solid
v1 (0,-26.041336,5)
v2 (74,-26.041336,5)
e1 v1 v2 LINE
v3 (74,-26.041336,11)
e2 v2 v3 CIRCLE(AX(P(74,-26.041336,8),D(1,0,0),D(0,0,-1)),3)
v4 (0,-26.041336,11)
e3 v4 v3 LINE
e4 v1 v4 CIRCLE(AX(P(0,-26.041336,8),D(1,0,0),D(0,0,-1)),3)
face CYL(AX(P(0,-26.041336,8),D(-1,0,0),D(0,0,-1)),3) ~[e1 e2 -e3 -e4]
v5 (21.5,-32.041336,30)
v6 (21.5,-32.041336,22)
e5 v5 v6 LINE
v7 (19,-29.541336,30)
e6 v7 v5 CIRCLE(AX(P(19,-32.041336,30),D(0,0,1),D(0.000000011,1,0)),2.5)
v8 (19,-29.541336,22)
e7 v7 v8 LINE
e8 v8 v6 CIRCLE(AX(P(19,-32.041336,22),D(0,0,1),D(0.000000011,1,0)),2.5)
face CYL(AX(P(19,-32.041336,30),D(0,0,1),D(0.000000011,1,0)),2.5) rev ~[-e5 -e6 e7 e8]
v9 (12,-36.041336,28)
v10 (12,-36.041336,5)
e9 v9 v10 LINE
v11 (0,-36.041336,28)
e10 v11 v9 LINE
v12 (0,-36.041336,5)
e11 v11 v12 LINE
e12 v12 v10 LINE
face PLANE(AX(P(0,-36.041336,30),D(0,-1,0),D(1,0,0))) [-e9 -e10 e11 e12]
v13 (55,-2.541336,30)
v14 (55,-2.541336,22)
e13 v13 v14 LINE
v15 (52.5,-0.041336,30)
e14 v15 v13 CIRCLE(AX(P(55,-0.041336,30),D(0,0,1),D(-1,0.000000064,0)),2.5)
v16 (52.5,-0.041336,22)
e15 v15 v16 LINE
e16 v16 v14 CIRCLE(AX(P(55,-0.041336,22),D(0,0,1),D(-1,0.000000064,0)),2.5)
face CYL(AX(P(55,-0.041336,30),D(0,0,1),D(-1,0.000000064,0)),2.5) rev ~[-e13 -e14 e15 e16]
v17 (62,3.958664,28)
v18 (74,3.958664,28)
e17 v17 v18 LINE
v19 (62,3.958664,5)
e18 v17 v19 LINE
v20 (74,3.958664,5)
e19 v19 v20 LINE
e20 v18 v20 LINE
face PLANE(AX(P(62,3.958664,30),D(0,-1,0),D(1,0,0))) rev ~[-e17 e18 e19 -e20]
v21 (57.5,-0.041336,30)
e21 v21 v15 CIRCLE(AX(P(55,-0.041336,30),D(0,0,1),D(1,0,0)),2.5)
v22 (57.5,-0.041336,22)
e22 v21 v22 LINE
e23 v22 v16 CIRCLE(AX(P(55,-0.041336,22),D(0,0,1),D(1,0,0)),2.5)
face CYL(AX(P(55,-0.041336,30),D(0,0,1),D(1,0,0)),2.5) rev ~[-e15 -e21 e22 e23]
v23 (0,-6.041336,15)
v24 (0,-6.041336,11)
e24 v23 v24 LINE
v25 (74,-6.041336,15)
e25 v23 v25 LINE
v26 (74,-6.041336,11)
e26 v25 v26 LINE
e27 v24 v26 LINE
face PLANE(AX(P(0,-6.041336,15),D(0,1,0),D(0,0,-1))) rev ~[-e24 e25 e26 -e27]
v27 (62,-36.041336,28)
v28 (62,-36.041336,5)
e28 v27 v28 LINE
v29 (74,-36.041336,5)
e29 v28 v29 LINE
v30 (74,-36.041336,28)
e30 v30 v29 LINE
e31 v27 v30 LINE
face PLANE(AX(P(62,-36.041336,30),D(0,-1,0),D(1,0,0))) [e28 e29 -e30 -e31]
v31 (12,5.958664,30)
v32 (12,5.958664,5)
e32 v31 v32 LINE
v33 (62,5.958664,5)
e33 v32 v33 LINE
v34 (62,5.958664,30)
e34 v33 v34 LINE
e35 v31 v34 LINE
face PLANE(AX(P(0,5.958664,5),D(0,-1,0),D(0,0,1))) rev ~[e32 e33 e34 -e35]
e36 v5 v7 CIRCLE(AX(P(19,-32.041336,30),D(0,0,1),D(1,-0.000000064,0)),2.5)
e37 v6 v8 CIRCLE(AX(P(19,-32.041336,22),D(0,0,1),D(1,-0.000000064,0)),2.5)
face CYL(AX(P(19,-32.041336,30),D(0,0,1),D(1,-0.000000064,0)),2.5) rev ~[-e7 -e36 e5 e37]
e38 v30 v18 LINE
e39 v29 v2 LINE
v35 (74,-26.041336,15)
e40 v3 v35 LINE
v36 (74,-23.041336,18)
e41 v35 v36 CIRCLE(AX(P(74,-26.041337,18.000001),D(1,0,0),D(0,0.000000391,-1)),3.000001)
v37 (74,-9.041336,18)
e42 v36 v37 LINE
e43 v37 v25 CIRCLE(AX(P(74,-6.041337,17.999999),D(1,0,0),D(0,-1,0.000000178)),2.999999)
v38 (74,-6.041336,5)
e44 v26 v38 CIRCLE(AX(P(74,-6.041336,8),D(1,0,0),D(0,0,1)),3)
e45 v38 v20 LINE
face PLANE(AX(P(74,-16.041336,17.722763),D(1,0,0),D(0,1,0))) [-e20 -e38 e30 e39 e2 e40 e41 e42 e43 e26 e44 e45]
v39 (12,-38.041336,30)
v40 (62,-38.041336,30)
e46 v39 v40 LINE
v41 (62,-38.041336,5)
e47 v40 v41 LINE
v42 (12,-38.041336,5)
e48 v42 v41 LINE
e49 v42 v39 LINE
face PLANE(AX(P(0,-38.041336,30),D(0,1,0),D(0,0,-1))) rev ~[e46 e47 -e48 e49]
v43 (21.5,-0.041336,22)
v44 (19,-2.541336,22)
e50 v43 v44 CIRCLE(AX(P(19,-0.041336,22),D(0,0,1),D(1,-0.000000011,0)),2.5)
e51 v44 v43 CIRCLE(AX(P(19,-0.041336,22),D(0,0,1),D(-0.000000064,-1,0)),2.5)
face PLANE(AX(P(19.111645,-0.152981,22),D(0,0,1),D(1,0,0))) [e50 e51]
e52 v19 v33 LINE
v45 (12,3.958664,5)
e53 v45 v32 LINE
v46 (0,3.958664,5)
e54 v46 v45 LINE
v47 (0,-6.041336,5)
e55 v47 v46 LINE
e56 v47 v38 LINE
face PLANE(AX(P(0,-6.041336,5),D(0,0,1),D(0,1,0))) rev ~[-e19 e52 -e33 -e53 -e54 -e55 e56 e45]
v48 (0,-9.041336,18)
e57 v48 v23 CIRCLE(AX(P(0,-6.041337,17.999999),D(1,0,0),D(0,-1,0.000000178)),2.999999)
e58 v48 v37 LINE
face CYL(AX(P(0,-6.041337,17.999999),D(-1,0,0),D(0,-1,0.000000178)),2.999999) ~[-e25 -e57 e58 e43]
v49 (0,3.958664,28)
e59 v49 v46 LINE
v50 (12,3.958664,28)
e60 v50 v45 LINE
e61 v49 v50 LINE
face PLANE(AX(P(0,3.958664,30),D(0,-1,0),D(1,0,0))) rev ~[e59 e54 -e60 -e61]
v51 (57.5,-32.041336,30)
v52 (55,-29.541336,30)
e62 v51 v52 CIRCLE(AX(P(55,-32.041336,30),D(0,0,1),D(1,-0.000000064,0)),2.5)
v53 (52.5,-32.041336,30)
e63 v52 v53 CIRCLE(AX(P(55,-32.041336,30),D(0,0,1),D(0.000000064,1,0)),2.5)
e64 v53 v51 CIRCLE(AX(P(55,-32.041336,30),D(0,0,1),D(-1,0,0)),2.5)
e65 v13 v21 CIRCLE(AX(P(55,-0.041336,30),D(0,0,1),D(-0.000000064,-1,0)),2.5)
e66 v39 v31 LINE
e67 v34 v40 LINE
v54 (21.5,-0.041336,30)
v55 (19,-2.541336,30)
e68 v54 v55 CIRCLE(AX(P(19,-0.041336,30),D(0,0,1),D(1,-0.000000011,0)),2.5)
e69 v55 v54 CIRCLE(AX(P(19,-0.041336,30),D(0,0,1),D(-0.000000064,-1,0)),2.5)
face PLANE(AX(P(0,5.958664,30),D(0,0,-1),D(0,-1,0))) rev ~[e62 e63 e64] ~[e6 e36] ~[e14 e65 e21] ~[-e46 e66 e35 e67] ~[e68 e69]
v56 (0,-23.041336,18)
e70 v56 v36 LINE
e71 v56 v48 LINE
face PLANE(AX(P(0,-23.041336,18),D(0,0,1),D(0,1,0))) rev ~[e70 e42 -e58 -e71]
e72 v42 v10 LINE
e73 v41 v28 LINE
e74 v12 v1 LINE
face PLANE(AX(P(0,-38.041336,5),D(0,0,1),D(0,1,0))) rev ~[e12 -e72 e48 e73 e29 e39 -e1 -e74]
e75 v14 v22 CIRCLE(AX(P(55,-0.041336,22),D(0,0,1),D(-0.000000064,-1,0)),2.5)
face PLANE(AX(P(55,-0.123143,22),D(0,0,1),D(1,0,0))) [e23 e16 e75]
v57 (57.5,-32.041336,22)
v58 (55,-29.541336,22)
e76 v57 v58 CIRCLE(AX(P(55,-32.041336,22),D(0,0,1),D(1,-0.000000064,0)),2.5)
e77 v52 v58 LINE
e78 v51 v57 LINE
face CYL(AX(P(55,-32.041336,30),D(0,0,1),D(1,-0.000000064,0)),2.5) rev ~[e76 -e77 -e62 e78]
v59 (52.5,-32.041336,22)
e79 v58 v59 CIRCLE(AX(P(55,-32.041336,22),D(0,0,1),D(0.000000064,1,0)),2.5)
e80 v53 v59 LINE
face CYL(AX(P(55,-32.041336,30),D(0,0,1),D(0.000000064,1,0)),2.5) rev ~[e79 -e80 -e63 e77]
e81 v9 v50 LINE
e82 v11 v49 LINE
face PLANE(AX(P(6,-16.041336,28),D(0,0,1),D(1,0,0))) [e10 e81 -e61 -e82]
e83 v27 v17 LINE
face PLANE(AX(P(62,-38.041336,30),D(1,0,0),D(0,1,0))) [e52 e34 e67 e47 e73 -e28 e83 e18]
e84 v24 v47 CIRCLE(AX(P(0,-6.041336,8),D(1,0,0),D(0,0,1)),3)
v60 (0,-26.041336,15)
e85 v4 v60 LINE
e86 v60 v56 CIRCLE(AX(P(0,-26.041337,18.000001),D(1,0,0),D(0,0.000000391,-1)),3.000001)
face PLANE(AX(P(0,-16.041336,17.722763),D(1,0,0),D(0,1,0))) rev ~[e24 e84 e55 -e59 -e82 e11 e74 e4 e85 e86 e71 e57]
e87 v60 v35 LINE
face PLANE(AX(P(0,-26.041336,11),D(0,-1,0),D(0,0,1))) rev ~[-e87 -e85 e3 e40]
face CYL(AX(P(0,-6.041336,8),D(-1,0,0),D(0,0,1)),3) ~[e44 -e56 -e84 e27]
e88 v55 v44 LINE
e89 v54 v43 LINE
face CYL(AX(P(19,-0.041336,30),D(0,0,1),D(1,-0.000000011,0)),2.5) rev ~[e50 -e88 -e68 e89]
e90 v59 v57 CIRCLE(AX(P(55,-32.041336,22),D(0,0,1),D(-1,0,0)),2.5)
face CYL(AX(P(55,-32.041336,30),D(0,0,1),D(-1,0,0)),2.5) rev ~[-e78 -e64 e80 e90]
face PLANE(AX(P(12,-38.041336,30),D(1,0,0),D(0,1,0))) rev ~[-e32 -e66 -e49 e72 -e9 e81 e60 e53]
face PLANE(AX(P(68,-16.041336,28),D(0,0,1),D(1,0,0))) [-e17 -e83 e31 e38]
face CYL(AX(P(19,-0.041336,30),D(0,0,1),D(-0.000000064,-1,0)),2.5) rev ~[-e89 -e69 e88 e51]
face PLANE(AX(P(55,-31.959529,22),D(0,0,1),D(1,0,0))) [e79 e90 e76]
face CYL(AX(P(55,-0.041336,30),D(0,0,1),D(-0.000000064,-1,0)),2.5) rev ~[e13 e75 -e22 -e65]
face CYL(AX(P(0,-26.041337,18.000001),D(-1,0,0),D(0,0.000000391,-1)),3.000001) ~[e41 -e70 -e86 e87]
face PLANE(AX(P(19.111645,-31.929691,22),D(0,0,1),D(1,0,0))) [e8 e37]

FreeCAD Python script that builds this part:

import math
import FreeCAD as App
import Part
import Sketcher

doc = App.newDocument("Part")
body = doc.addObject("PartDesign::Body", "Body")

# Sketch on YZ plane
sketch1 = doc.addObject("Sketcher::SketchObject", "Sketch")
body.addObject(sketch1)
sketch1.AttachmentSupport = (doc.YZ_Plane, [""])
sketch1.MapMode = "FlatFace"
sketch1.addGeometry(Part.ArcOfCircle(Part.Circle(App.Vector(-26, 8, 0), App.Vector(0, 0, 1), 3), math.radians(-90), math.radians(90)), False)
sketch1.addGeometry(Part.LineSegment(App.Vector(-26, 11, 0), App.Vector(-26, 15, 0)), False)
sketch1.addGeometry(Part.ArcOfCircle(Part.Circle(App.Vector(-26, 18, 0), App.Vector(0, 0, 1), 3), math.radians(-90), math.radians(0)), False)
sketch1.addGeometry(Part.LineSegment(App.Vector(-23, 18, 0), App.Vector(-9, 18, 0)), False)
sketch1.addGeometry(Part.ArcOfCircle(Part.Circle(App.Vector(-6, 18, 0), App.Vector(0, 0, 1), 3), math.radians(180), math.radians(270)), False)
sketch1.addGeometry(Part.LineSegment(App.Vector(-6, 15, 0), App.Vector(-6, 11, 0)), False)
sketch1.addGeometry(Part.ArcOfCircle(Part.Circle(App.Vector(-6, 8, 0), App.Vector(0, 0, 1), 3), math.radians(90), math.radians(270)), False)
sketch1.addGeometry(Part.LineSegment(App.Vector(-6, 5, 0), App.Vector(6, 5, 0)), False)
sketch1.addGeometry(Part.LineSegment(App.Vector(6, 5, 0), App.Vector(6, 30, 0)), False)
sketch1.addGeometry(Part.LineSegment(App.Vector(6, 30, 0), App.Vector(-38, 30, 0)), False)
sketch1.addGeometry(Part.LineSegment(App.Vector(-38, 30, 0), App.Vector(-38, 5, 0)), False)
sketch1.addGeometry(Part.LineSegment(App.Vector(-38, 5, 0), App.Vector(-26, 5, 0)), False)
sketch1.addConstraint(Sketcher.Constraint("Coincident", 0, 2, 1, 1))
sketch1.addConstraint(Sketcher.Constraint("Coincident", 1, 2, 2, 1))
sketch1.addConstraint(Sketcher.Constraint("Coincident", 2, 2, 3, 1))
sketch1.addConstraint(Sketcher.Constraint("Coincident", 3, 2, 4, 1))
sketch1.addConstraint(Sketcher.Constraint("Coincident", 4, 2, 5, 1))
sketch1.addConstraint(Sketcher.Constraint("Coincident", 5, 2, 6, 1))
sketch1.addConstraint(Sketcher.Constraint("Tangent", 6, 2, 7, 1))
sketch1.addConstraint(Sketcher.Constraint("Coincident", 7, 2, 8, 1))
sketch1.addConstraint(Sketcher.Constraint("Coincident", 8, 2, 9, 1))
sketch1.addConstraint(Sketcher.Constraint("Coincident", 9, 2, 10, 1))
sketch1.addConstraint(Sketcher.Constraint("Coincident", 10, 2, 11, 1))
sketch1.addConstraint(Sketcher.Constraint("Tangent", 11, 2, 0, 1))
sketch1.addConstraint(Sketcher.Constraint("Vertical", 1))
sketch1.addConstraint(Sketcher.Constraint("Horizontal", 3))
sketch1.addConstraint(Sketcher.Constraint("Vertical", 5))
sketch1.addConstraint(Sketcher.Constraint("Horizontal", 7))
sketch1.addConstraint(Sketcher.Constraint("Vertical", 8))
sketch1.addConstraint(Sketcher.Constraint("Horizontal", 9))
sketch1.addConstraint(Sketcher.Constraint("Vertical", 10))
sketch1.addConstraint(Sketcher.Constraint("Horizontal", 11))
sketch1.addConstraint(Sketcher.Constraint("Equal", 0, 2))
sketch1.addConstraint(Sketcher.Constraint("Equal", 2, 4))
sketch1.addConstraint(Sketcher.Constraint("Equal", 4, 6))
sketch1.addConstraint(Sketcher.Constraint("Horizontal", 2, 3, 4, 3))
sketch1.addConstraint(Sketcher.Constraint("Horizontal", 0, 3, 6, 3))
sketch1.addConstraint(Sketcher.Constraint("Horizontal", 4, 3, 2, 2))
sketch1.addConstraint(Sketcher.Constraint("Vertical", 0, 3, 2, 3))
sketch1.addConstraint(Sketcher.Constraint("Vertical", 4, 3, 6, 3))
sketch1.addConstraint(Sketcher.Constraint("Vertical", 2, 3, 0, 2))
sketch1.addConstraint(Sketcher.Constraint("Vertical", 6, 3, 4, 2))
sketch1.addConstraint(Sketcher.Constraint("Equal", 7, 11))
sketch1.addConstraint(Sketcher.Constraint("Radius", 0, 3.0))
sketch1.addConstraint(Sketcher.Constraint("DistanceX", 3, 1, 3, 2, 14.0))
sketch1.addConstraint(Sketcher.Constraint("DistanceX", 7, 1, 7, 2, 12.0))
sketch1.addConstraint(Sketcher.Constraint("DistanceY", 1, 1, 1, 2, 4.0))
sketch1.addConstraint(Sketcher.Constraint("DistanceY", 8, 1, 8, 2, 25.0))
sketch1.addConstraint(Sketcher.Constraint("DistanceY", -1, 1, 0, 3, 8.0))
sketch1.addConstraint(Sketcher.Constraint("DistanceX", 0, 3, -1, 1, 26.041336))
pad1 = doc.addObject("PartDesign::Pad", "Pad")
body.addObject(pad1)
pad1.Profile = sketch1
pad1.Length = 74

# Sketch on XY plane
sketch2 = doc.addObject("Sketcher::SketchObject", "Sketch001")
body.addObject(sketch2)
sketch2.AttachmentSupport = (doc.XY_Plane, [""])
sketch2.MapMode = "FlatFace"
sketch2.AttachmentOffset = App.Placement(App.Vector(0, 0, 30), App.Rotation())
sketch2.addGeometry(Part.LineSegment(App.Vector(62, 6, 0), App.Vector(62, -38, 0)), False)
sketch2.addGeometry(Part.LineSegment(App.Vector(62, -38, 0), App.Vector(74, -38, 0)), False)
sketch2.addGeometry(Part.LineSegment(App.Vector(74, -38, 0), App.Vector(74, 6, 0)), False)
sketch2.addGeometry(Part.LineSegment(App.Vector(74, 6, 0), App.Vector(62, 6, 0)), False)
sketch2.addGeometry(Part.LineSegment(App.Vector(0, 6, 0), App.Vector(0, -38, 0)), False)
sketch2.addGeometry(Part.LineSegment(App.Vector(0, -38, 0), App.Vector(12, -38, 0)), False)
sketch2.addGeometry(Part.LineSegment(App.Vector(12, -38, 0), App.Vector(12, 6, 0)), False)
sketch2.addGeometry(Part.LineSegment(App.Vector(12, 6, 0), App.Vector(0, 6, 0)), False)
sketch2.addConstraint(Sketcher.Constraint("Coincident", 0, 2, 1, 1))
sketch2.addConstraint(Sketcher.Constraint("Coincident", 1, 2, 2, 1))
sketch2.addConstraint(Sketcher.Constraint("Coincident", 2, 2, 3, 1))
sketch2.addConstraint(Sketcher.Constraint("Coincident", 3, 2, 0, 1))
sketch2.addConstraint(Sketcher.Constraint("Coincident", 4, 2, 5, 1))
sketch2.addConstraint(Sketcher.Constraint("Coincident", 5, 2, 6, 1))
sketch2.addConstraint(Sketcher.Constraint("Coincident", 6, 2, 7, 1))
sketch2.addConstraint(Sketcher.Constraint("Coincident", 7, 2, 4, 1))
sketch2.addConstraint(Sketcher.Constraint("Vertical", 0))
sketch2.addConstraint(Sketcher.Constraint("Horizontal", 1))
sketch2.addConstraint(Sketcher.Constraint("Vertical", 2))
sketch2.addConstraint(Sketcher.Constraint("Horizontal", 3))
sketch2.addConstraint(Sketcher.Constraint("Vertical", 4))
sketch2.addConstraint(Sketcher.Constraint("Horizontal", 5))
sketch2.addConstraint(Sketcher.Constraint("Vertical", 6))
sketch2.addConstraint(Sketcher.Constraint("Horizontal", 7))
sketch2.addConstraint(Sketcher.Constraint("PointOnObject", 4, 2, -2))
sketch2.addConstraint(Sketcher.Constraint("Horizontal", 1, 2, 4, 2))
sketch2.addConstraint(Sketcher.Constraint("Horizontal", 3, 2, 6, 2))
sketch2.addConstraint(Sketcher.Constraint("Equal", 3, 5))
sketch2.addConstraint(Sketcher.Constraint("DistanceX", 1, 1, 1, 2, 12.0))
sketch2.addConstraint(Sketcher.Constraint("DistanceY", 0, 2, 0, 1, 44.0))
sketch2.addConstraint(Sketcher.Constraint("DistanceX", -1, 1, 0, 2, 62.0))
sketch2.addConstraint(Sketcher.Constraint("DistanceY", 0, 2, -1, 1, 38.041336))
pocket1 = doc.addObject("PartDesign::Pocket", "Pocket")
body.addObject(pocket1)
pocket1.Profile = sketch2
pocket1.Length = 2

# Sketch on XY plane
sketch3 = doc.addObject("Sketcher::SketchObject", "Sketch002")
body.addObject(sketch3)
sketch3.AttachmentSupport = (doc.XY_Plane, [""])
sketch3.MapMode = "FlatFace"
sketch3.AttachmentOffset = App.Placement(App.Vector(0, 0, 30), App.Rotation())
sketch3.addGeometry(Part.LineSegment(App.Vector(0, 6, 0), App.Vector(0, 4, 0)), False)
sketch3.addGeometry(Part.LineSegment(App.Vector(0, 4, 0), App.Vector(12, 4, 0)), False)
sketch3.addGeometry(Part.LineSegment(App.Vector(12, 4, 0), App.Vector(12, 6, 0)), False)
sketch3.addGeometry(Part.LineSegment(App.Vector(12, 6, 0), App.Vector(0, 6, 0)), False)
sketch3.addGeometry(Part.LineSegment(App.Vector(0, -36, 0), App.Vector(0, -38, 0)), False)
sketch3.addGeometry(Part.LineSegment(App.Vector(0, -38, 0), App.Vector(12, -38, 0)), False)
sketch3.addGeometry(Part.LineSegment(App.Vector(12, -38, 0), App.Vector(12, -36, 0)), False)
sketch3.addGeometry(Part.LineSegment(App.Vector(12, -36, 0), App.Vector(0, -36, 0)), False)
sketch3.addGeometry(Part.LineSegment(App.Vector(62, -36, 0), App.Vector(62, -38, 0)), False)
sketch3.addGeometry(Part.LineSegment(App.Vector(62, -38, 0), App.Vector(74, -38, 0)), False)
sketch3.addGeometry(Part.LineSegment(App.Vector(74, -38, 0), App.Vector(74, -36, 0)), False)
sketch3.addGeometry(Part.LineSegment(App.Vector(74, -36, 0), App.Vector(62, -36, 0)), False)
sketch3.addGeometry(Part.LineSegment(App.Vector(62, 6, 0), App.Vector(62, 4, 0)), False)
sketch3.addGeometry(Part.LineSegment(App.Vector(62, 4, 0), App.Vector(74, 4, 0)), False)
sketch3.addGeometry(Part.LineSegment(App.Vector(74, 4, 0), App.Vector(74, 6, 0)), False)
sketch3.addGeometry(Part.LineSegment(App.Vector(74, 6, 0), App.Vector(62, 6, 0)), False)
sketch3.addConstraint(Sketcher.Constraint("Coincident", 0, 2, 1, 1))
sketch3.addConstraint(Sketcher.Constraint("Coincident", 1, 2, 2, 1))
sketch3.addConstraint(Sketcher.Constraint("Coincident", 2, 2, 3, 1))
sketch3.addConstraint(Sketcher.Constraint("Coincident", 3, 2, 0, 1))
sketch3.addConstraint(Sketcher.Constraint("Coincident", 4, 2, 5, 1))
sketch3.addConstraint(Sketcher.Constraint("Coincident", 5, 2, 6, 1))
sketch3.addConstraint(Sketcher.Constraint("Coincident", 6, 2, 7, 1))
sketch3.addConstraint(Sketcher.Constraint("Coincident", 7, 2, 4, 1))
sketch3.addConstraint(Sketcher.Constraint("Coincident", 8, 2, 9, 1))
sketch3.addConstraint(Sketcher.Constraint("Coincident", 9, 2, 10, 1))
sketch3.addConstraint(Sketcher.Constraint("Coincident", 10, 2, 11, 1))
sketch3.addConstraint(Sketcher.Constraint("Coincident", 11, 2, 8, 1))
sketch3.addConstraint(Sketcher.Constraint("Coincident", 12, 2, 13, 1))
sketch3.addConstraint(Sketcher.Constraint("Coincident", 13, 2, 14, 1))
sketch3.addConstraint(Sketcher.Constraint("Coincident", 14, 2, 15, 1))
sketch3.addConstraint(Sketcher.Constraint("Coincident", 15, 2, 12, 1))
sketch3.addConstraint(Sketcher.Constraint("Vertical", 0))
sketch3.addConstraint(Sketcher.Constraint("Horizontal", 1))
sketch3.addConstraint(Sketcher.Constraint("Vertical", 2))
sketch3.addConstraint(Sketcher.Constraint("Horizontal", 3))
sketch3.addConstraint(Sketcher.Constraint("Vertical", 4))
sketch3.addConstraint(Sketcher.Constraint("Horizontal", 5))
sketch3.addConstraint(Sketcher.Constraint("Vertical", 6))
sketch3.addConstraint(Sketcher.Constraint("Horizontal", 7))
sketch3.addConstraint(Sketcher.Constraint("Vertical", 8))
sketch3.addConstraint(Sketcher.Constraint("Horizontal", 9))
sketch3.addConstraint(Sketcher.Constraint("Vertical", 10))
sketch3.addConstraint(Sketcher.Constraint("Horizontal", 11))
sketch3.addConstraint(Sketcher.Constraint("Vertical", 12))
sketch3.addConstraint(Sketcher.Constraint("Horizontal", 13))
sketch3.addConstraint(Sketcher.Constraint("Vertical", 14))
sketch3.addConstraint(Sketcher.Constraint("Horizontal", 15))
sketch3.addConstraint(Sketcher.Constraint("PointOnObject", 0, 2, -2))
sketch3.addConstraint(Sketcher.Constraint("PointOnObject", 4, 2, -2))
sketch3.addConstraint(Sketcher.Constraint("Horizontal", 5, 2, 8, 2))
sketch3.addConstraint(Sketcher.Constraint("Horizontal", 7, 2, 10, 2))
sketch3.addConstraint(Sketcher.Constraint("Horizontal", 1, 2, 12, 2))
sketch3.addConstraint(Sketcher.Constraint("Horizontal", 3, 2, 14, 2))
sketch3.addConstraint(Sketcher.Constraint("Vertical", 2, 2, 5, 2))
sketch3.addConstraint(Sketcher.Constraint("Vertical", 11, 2, 12, 2))
sketch3.addConstraint(Sketcher.Constraint("Vertical", 10, 2, 13, 2))
sketch3.addConstraint(Sketcher.Constraint("Equal", 7, 9))
sketch3.addConstraint(Sketcher.Constraint("Equal", 2, 4))
sketch3.addConstraint(Sketcher.Constraint("DistanceX", 1, 1, 1, 2, 12.0))
sketch3.addConstraint(Sketcher.Constraint("DistanceY", 0, 2, 0, 1, 2.0))
sketch3.addConstraint(Sketcher.Constraint("DistanceX", -1, 1, 8, 2, 62.0))
sketch3.addConstraint(Sketcher.Constraint("DistanceY", 4, 2, 0, 2, 42.0))
sketch3.addConstraint(Sketcher.Constraint("DistanceY", -1, 1, 0, 2, 3.958664))
pocket2 = doc.addObject("PartDesign::Pocket", "Pocket001")
body.addObject(pocket2)
pocket2.Profile = sketch3
pocket2.Length = 25

# Sketch on XY plane
sketch4 = doc.addObject("Sketcher::SketchObject", "Sketch003")
body.addObject(sketch4)
sketch4.AttachmentSupport = (doc.XY_Plane, [""])
sketch4.MapMode = "FlatFace"
sketch4.AttachmentOffset = App.Placement(App.Vector(0, 0, 30), App.Rotation())
sketch4.addGeometry(Part.ArcOfCircle(Part.Circle(App.Vector(19, 0, 0), App.Vector(0, 0, 1), 2.5), math.radians(0), math.radians(270)), False)
sketch4.addGeometry(Part.ArcOfCircle(Part.Circle(App.Vector(19, 0, 0), App.Vector(0, 0, 1), 2.5), math.radians(-90), math.radians(0)), False)
sketch4.addGeometry(Part.ArcOfCircle(Part.Circle(App.Vector(55, 0, 0), App.Vector(0, 0, 1), 2.5), math.radians(180), math.radians(270)), False)
sketch4.addGeometry(Part.ArcOfCircle(Part.Circle(App.Vector(55, 0, 0), App.Vector(0, 0, 1), 2.5), math.radians(-90), math.radians(0)), False)
sketch4.addGeometry(Part.ArcOfCircle(Part.Circle(App.Vector(55, 0, 0), App.Vector(0, 0, 1), 2.5), math.radians(0), math.radians(180)), False)
sketch4.addGeometry(Part.ArcOfCircle(Part.Circle(App.Vector(55, -32, 0), App.Vector(0, 0, 1), 2.5), math.radians(90), math.radians(180)), False)
sketch4.addGeometry(Part.ArcOfCircle(Part.Circle(App.Vector(55, -32, 0), App.Vector(0, 0, 1), 2.5), math.radians(180), math.radians(360)), False)
sketch4.addGeometry(Part.ArcOfCircle(Part.Circle(App.Vector(55, -32, 0), App.Vector(0, 0, 1), 2.5), math.radians(0), math.radians(90)), False)
sketch4.addGeometry(Part.ArcOfCircle(Part.Circle(App.Vector(19, -32, 0), App.Vector(0, 0, 1), 2.5), math.radians(90), math.radians(360)), False)
sketch4.addGeometry(Part.ArcOfCircle(Part.Circle(App.Vector(19, -32, 0), App.Vector(0, 0, 1), 2.5), math.radians(0), math.radians(90)), False)
sketch4.addConstraint(Sketcher.Constraint("Tangent", 0, 1, 1, 2))
sketch4.addConstraint(Sketcher.Constraint("Coincident", 1, 1, 0, 2))
sketch4.addConstraint(Sketcher.Constraint("Tangent", 2, 2, 3, 1))
sketch4.addConstraint(Sketcher.Constraint("Tangent", 3, 2, 4, 1))
sketch4.addConstraint(Sketcher.Constraint("Tangent", 4, 2, 2, 1))
sketch4.addConstraint(Sketcher.Constraint("Tangent", 5, 2, 6, 1))
sketch4.addConstraint(Sketcher.Constraint("Tangent", 6, 2, 7, 1))
sketch4.addConstraint(Sketcher.Constraint("Tangent", 7, 2, 5, 1))
sketch4.addConstraint(Sketcher.Constraint("Tangent", 8, 1, 9, 2))
sketch4.addConstraint(Sketcher.Constraint("Coincident", 9, 1, 8, 2))
sketch4.addConstraint(Sketcher.Constraint("Equal", 1, 2))
sketch4.addConstraint(Sketcher.Constraint("Equal", 4, 5))
sketch4.addConstraint(Sketcher.Constraint("Equal", 7, 8))
sketch4.addConstraint(Sketcher.Constraint("Horizontal", 1, 3, 2, 3))
sketch4.addConstraint(Sketcher.Constraint("Horizontal", 7, 3, 8, 3))
sketch4.addConstraint(Sketcher.Constraint("Horizontal", 4, 3, 0, 1))
sketch4.addConstraint(Sketcher.Constraint("Horizontal", 0, 1, 3, 2))
sketch4.addConstraint(Sketcher.Constraint("Horizontal", 3, 2, 4, 2))
sketch4.addConstraint(Sketcher.Constraint("Horizontal", 9, 3, 5, 2))
sketch4.addConstraint(Sketcher.Constraint("Horizontal", 5, 2, 6, 2))
sketch4.addConstraint(Sketcher.Constraint("Horizontal", 6, 2, 9, 1))
sketch4.addConstraint(Sketcher.Constraint("Vertical", 4, 3, 5, 3))
sketch4.addConstraint(Sketcher.Constraint("Vertical", 1, 3, 8, 3))
sketch4.addConstraint(Sketcher.Constraint("Vertical", 9, 3, 1, 1))
sketch4.addConstraint(Sketcher.Constraint("Vertical", 7, 3, 2, 2))
sketch4.addConstraint(Sketcher.Constraint("Vertical", 2, 2, 7, 2))
sketch4.addConstraint(Sketcher.Constraint("Vertical", 1, 1, 8, 1))
sketch4.addConstraint(Sketcher.Constraint("Radius", 0, 2.5))
sketch4.addConstraint(Sketcher.Constraint("DistanceX", -1, 1, 0, 3, 19.0))
sketch4.addConstraint(Sketcher.Constraint("DistanceX", -1, 1, 2, 3, 55.0))
sketch4.addConstraint(Sketcher.Constraint("DistanceY", 5, 3, 2, 3, 32.0))
sketch4.addConstraint(Sketcher.Constraint("DistanceY", 0, 3, -1, 1, 0.041336))
pocket3 = doc.addObject("PartDesign::Pocket", "Pocket002")
body.addObject(pocket3)
pocket3.Profile = sketch4
pocket3.Length = 8

doc.recompute()
